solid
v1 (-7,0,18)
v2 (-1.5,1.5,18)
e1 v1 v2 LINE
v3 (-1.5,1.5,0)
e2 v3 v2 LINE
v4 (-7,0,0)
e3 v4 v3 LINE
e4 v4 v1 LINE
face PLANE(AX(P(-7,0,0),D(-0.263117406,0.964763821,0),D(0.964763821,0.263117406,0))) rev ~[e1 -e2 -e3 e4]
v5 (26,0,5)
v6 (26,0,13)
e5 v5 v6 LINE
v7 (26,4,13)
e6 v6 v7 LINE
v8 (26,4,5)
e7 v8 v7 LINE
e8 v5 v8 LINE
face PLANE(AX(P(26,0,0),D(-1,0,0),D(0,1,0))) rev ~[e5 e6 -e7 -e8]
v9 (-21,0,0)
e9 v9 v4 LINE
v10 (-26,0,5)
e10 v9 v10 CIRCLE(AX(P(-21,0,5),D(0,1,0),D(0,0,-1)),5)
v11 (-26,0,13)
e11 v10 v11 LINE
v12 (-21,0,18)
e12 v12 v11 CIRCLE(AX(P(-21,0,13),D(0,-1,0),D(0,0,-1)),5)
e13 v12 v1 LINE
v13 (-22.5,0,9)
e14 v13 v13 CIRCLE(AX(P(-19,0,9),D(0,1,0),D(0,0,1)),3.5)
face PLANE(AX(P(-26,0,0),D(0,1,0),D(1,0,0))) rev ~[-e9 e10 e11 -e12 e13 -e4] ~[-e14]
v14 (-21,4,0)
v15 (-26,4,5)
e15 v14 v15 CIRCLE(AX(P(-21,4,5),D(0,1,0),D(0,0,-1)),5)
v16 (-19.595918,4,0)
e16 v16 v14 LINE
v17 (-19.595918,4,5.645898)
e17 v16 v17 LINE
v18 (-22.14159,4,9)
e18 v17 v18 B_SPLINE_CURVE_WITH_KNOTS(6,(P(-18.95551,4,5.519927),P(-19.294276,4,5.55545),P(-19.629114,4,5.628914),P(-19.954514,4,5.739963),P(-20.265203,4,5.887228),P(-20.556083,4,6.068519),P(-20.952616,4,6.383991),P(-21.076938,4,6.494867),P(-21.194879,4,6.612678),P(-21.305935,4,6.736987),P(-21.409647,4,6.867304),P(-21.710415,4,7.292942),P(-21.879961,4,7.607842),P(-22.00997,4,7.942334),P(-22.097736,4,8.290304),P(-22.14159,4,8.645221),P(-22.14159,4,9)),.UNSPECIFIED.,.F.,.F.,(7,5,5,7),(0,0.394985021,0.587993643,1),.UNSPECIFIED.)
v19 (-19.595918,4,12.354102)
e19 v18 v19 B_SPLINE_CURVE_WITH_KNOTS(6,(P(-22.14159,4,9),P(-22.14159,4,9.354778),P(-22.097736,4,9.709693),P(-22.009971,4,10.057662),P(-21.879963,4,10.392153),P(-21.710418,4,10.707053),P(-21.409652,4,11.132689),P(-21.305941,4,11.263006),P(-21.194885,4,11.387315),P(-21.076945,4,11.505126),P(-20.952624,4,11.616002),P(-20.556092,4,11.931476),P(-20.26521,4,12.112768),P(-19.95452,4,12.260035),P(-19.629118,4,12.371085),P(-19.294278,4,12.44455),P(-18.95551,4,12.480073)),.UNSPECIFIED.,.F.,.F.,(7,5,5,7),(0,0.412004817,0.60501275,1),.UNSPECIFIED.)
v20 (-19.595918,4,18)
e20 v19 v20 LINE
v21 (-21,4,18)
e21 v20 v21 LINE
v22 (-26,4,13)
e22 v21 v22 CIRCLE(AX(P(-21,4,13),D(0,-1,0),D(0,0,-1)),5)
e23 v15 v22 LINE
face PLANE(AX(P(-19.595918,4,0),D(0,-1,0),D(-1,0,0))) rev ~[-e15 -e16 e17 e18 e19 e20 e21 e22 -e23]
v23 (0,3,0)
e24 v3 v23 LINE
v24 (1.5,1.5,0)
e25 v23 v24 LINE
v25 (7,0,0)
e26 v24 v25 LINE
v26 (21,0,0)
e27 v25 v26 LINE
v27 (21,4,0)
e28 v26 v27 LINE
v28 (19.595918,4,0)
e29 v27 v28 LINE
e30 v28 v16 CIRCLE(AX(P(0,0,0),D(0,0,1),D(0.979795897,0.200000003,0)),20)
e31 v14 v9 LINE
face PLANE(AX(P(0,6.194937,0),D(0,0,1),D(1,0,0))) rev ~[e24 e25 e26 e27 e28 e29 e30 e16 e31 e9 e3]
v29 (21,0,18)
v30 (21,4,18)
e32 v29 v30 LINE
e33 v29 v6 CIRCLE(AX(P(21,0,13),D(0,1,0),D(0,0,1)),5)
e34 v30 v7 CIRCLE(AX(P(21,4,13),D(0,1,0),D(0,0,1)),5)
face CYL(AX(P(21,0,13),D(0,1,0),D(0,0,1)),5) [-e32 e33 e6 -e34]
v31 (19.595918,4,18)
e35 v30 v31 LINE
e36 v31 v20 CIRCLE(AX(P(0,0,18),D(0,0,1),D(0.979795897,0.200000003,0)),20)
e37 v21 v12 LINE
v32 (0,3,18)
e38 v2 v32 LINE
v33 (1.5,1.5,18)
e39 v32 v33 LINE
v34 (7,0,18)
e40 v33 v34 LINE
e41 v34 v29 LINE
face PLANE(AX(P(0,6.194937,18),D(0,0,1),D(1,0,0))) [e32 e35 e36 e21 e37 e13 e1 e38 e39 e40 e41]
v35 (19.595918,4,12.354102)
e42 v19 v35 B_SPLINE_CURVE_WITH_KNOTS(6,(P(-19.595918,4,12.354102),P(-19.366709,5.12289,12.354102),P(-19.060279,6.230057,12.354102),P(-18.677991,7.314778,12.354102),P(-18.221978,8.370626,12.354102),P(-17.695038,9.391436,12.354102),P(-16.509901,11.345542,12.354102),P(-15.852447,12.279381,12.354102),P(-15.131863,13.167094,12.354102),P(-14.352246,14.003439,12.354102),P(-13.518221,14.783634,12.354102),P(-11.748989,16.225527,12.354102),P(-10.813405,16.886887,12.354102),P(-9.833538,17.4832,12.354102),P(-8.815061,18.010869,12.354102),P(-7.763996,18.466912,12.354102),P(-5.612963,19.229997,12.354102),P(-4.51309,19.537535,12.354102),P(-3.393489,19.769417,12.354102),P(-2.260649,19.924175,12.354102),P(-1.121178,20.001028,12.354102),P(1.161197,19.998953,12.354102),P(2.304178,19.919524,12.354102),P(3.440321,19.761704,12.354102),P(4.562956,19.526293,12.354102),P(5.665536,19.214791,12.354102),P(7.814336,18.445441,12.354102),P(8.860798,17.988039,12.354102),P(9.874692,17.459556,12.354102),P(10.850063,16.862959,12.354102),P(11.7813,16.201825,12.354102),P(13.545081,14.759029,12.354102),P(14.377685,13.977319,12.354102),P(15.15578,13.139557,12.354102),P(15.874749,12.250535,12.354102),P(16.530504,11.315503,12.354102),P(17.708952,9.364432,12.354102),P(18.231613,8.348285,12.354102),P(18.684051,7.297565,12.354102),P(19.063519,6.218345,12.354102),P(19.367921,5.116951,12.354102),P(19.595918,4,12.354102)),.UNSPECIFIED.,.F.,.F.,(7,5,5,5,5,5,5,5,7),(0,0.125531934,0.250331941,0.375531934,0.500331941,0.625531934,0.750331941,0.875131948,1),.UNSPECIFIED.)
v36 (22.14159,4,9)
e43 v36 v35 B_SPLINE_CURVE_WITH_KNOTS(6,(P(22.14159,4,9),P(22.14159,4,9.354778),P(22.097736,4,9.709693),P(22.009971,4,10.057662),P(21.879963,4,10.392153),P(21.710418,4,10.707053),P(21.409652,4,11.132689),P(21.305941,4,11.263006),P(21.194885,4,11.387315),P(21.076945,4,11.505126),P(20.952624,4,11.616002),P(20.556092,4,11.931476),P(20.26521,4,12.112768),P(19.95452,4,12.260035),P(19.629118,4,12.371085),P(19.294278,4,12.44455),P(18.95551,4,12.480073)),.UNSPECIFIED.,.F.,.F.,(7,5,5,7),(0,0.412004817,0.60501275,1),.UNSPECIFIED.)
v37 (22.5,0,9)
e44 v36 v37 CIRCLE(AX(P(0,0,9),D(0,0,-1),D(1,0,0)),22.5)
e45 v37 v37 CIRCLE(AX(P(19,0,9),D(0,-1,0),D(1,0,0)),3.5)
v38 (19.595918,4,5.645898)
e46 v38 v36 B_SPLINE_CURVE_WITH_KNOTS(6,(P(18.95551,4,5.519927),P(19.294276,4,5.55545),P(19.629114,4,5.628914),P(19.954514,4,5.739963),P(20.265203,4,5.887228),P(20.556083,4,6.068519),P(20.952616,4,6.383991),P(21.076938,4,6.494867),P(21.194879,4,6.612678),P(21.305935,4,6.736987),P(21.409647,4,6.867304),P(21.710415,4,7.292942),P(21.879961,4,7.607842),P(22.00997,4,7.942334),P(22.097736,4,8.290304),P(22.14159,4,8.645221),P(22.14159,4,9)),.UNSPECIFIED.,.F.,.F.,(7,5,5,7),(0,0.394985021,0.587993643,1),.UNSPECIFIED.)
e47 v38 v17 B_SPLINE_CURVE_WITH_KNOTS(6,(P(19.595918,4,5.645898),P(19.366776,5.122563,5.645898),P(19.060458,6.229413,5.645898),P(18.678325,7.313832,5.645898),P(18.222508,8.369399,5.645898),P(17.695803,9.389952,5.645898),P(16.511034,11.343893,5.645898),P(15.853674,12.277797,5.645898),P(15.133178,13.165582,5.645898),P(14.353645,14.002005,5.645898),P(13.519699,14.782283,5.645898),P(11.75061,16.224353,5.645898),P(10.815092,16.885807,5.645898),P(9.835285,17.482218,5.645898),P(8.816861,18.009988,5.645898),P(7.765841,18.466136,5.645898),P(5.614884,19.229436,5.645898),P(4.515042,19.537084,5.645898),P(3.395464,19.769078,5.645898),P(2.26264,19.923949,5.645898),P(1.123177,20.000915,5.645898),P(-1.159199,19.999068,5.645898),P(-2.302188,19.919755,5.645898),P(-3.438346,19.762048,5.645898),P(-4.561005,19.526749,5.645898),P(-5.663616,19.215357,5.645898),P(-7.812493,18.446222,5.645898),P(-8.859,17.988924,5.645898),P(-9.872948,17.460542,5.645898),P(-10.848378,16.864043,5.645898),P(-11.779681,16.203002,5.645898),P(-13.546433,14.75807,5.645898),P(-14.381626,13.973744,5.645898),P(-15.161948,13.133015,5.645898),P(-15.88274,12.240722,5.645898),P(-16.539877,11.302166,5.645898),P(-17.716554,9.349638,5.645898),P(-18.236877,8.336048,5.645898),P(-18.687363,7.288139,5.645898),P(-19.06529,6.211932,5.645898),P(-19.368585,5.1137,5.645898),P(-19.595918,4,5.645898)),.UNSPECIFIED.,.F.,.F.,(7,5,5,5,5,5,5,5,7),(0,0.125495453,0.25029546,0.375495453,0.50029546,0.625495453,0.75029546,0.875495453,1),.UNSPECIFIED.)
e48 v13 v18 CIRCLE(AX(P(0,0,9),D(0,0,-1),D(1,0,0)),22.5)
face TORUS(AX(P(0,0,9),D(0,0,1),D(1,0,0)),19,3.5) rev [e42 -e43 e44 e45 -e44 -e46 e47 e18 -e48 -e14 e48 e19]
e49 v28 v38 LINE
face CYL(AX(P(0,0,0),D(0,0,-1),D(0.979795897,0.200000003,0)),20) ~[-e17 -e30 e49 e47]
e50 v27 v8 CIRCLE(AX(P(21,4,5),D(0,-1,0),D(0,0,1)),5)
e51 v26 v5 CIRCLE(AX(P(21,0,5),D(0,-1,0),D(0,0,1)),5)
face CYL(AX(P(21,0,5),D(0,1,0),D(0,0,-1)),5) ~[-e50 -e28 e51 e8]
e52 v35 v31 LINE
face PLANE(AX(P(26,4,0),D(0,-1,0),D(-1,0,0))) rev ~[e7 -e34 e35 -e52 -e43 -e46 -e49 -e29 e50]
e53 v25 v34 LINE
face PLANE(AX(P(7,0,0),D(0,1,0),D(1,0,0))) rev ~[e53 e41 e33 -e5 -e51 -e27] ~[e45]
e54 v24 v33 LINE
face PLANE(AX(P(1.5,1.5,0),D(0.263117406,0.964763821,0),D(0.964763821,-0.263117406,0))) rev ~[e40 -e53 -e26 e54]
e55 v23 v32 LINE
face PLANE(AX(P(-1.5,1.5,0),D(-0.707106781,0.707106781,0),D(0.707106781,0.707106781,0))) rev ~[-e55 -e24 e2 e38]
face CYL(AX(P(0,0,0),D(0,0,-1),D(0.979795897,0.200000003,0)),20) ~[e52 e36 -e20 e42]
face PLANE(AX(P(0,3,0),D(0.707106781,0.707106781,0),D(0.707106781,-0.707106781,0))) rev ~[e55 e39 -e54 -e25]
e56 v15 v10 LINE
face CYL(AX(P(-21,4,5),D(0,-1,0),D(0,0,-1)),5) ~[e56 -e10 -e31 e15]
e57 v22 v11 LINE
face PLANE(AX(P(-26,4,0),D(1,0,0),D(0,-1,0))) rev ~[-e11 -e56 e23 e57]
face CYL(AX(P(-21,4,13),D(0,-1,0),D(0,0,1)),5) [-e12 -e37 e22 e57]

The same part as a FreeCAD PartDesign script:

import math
import FreeCAD as App
import Part
import Sketcher


def edges_at(feature, points):
    """Names of the edges that pass closest to the given points."""
    edges = feature.Shape.Edges
    near = lambda p: min(range(len(edges)), key=lambda i: edges[i].distToShape(Part.Vertex(*p))[0])
    return sorted({f"Edge{near(p) + 1}" for p in points})

doc = App.newDocument("Part")
body = doc.addObject("PartDesign::Body", "Body")

sketch1 = doc.addObject("Sketcher::SketchObject", "Sketch")
body.addObject(sketch1)
sketch1.AttachmentSupport = (doc.XY_Plane, [""])
sketch1.MapMode = "FlatFace"
sketch1.addGeometry([
    Part.LineSegment(App.Vector(26, 4, 0), App.Vector(19.595918, 4, 0)),
    Part.ArcOfCircle(Part.Circle(App.Vector(0, 0, 0), App.Vector(0, 0, 1), 20), math.radians(11.536959), math.radians(168.463041)),
    Part.LineSegment(App.Vector(-19.595918, 4, 0), App.Vector(-26, 4, 0)),
    Part.LineSegment(App.Vector(-26, 4, 0), App.Vector(-26, 0, 0)),
    Part.LineSegment(App.Vector(-26, 0, 0), App.Vector(-7, 0, 0)),
    Part.LineSegment(App.Vector(-7, 0, 0), App.Vector(-1.5, 1.5, 0)),
    Part.LineSegment(App.Vector(-1.5, 1.5, 0), App.Vector(0, 3, 0)),
    Part.LineSegment(App.Vector(0, 3, 0), App.Vector(1.5, 1.5, 0)),
    Part.LineSegment(App.Vector(1.5, 1.5, 0), App.Vector(7, 0, 0)),
    Part.LineSegment(App.Vector(7, 0, 0), App.Vector(26, 0, 0)),
    Part.LineSegment(App.Vector(26, 0, 0), App.Vector(26, 4, 0)),
], False)
sketch1.addConstraint([
    Sketcher.Constraint("Coincident", 0, 2, 1, 1),
    Sketcher.Constraint("Coincident", 1, 2, 2, 1),
    Sketcher.Constraint("Coincident", 2, 2, 3, 1),
    Sketcher.Constraint("Coincident", 3, 2, 4, 1),
    Sketcher.Constraint("Coincident", 4, 2, 5, 1),
    Sketcher.Constraint("Coincident", 5, 2, 6, 1),
    Sketcher.Constraint("Coincident", 6, 2, 7, 1),
    Sketcher.Constraint("Coincident", 7, 2, 8, 1),
    Sketcher.Constraint("Coincident", 8, 2, 9, 1),
    Sketcher.Constraint("Coincident", 9, 2, 10, 1),
    Sketcher.Constraint("Coincident", 10, 2, 0, 1),
    Sketcher.Constraint("Horizontal", 0),
    Sketcher.Constraint("Horizontal", 2),
    Sketcher.Constraint("Vertical", 3),
    Sketcher.Constraint("Horizontal", 4),
    Sketcher.Constraint("Horizontal", 9),
    Sketcher.Constraint("Vertical", 10),
    Sketcher.Constraint("Coincident", 1, 3, -1, 1),
    Sketcher.Constraint("Symmetric", 4, 2, 8, 2, -1, 1),
    Sketcher.Constraint("Symmetric", 5, 2, 7, 2, -2),
    Sketcher.Constraint("Symmetric", 3, 2, 9, 2, -2),
    Sketcher.Constraint("PointOnObject", 6, 2, -2),
    Sketcher.Constraint("Perpendicular", 6, 7),
    Sketcher.Constraint("Horizontal", 0, 2, 1, 2),
    Sketcher.Constraint("Radius", 1, 20.0),
    Sketcher.Constraint("DistanceX", 4, 1, 4, 2, 19.0),
    Sketcher.Constraint("DistanceY", 3, 2, 3, 1, 4.0),
    Sketcher.Constraint("DistanceX", 2, 2, -1, 1, 26.0),
    Sketcher.Constraint("DistanceY", -1, 1, 6, 2, 3.0),
    Sketcher.Constraint("DistanceX", 5, 2, 7, 2, 3.0),
])
pad1 = doc.addObject("PartDesign::Pad", "Pad")
body.addObject(pad1)
pad1.Profile = sketch1
pad1.Length = 18

sketch2 = doc.addObject("Sketcher::SketchObject", "Sketch001")
body.addObject(sketch2)
sketch2.AttachmentSupport = (doc.XZ_Plane, [""])
sketch2.MapMode = "FlatFace"
sketch2.addGeometry(Part.Circle(App.Vector(19, 9, 0), App.Vector(0, 0, 1), 3.5), False)
sketch2.addConstraint([
    Sketcher.Constraint("Diameter", 0, 7.0),
    Sketcher.Constraint("DistanceX", -1, 1, 0, 3, 19.0),
    Sketcher.Constraint("DistanceY", -1, 1, 0, 3, 9.0),
])
groove = doc.addObject("PartDesign::Groove", "Groove")
body.addObject(groove)
groove.Profile = sketch2
groove.ReferenceAxis = (sketch2, ["V_Axis"])
groove.Angle = 360
doc.recompute()

fillet = doc.addObject("PartDesign::Fillet", "Fillet")
body.addObject(fillet)
fillet.Base = (groove, edges_at(groove, [
    (26, 2, 18),
    (26, 2, 0),
    (-26, 2, 0),
    (-26, 2, 18),
]))
fillet.Radius = 5

doc.recompute()
